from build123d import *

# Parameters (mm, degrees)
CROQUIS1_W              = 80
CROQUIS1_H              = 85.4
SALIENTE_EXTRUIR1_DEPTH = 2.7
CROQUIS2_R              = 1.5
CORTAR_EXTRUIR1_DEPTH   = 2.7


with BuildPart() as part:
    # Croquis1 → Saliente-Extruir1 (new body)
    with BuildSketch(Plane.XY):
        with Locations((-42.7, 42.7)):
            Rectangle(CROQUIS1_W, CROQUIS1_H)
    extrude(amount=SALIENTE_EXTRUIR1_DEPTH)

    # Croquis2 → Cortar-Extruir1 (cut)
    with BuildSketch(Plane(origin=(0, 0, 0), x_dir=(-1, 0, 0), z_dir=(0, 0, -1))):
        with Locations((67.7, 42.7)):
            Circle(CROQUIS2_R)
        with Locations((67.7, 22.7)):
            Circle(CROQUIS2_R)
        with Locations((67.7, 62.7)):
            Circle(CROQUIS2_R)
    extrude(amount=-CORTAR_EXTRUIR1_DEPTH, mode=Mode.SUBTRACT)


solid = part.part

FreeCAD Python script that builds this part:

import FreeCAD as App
import Part
import Sketcher
from FreeCAD import Vector
Q = App.Units.Quantity


def add_polygon(sketch, points):
    """Adds a closed chain of lines whose ends are joined by coincident constraints."""
    first, n = sketch.GeometryCount, len(points)
    for a, b in zip(points, points[1:] + points[:1]):
        sketch.addGeometry(Part.LineSegment(App.Vector(*a, 0), App.Vector(*b, 0)), False)
    for i in range(n):
        sketch.addConstraint(Sketcher.Constraint("Coincident", first + i, 2, first + (i + 1) % n, 1))

doc = App.newDocument("Part")
params = doc.addObject("Spreadsheet::Sheet", "Params")
for row, (alias, value) in enumerate([
    ("sketch1_width", "80 mm"),
    ("sketch1_height", "85.4 mm"),
    ("pad1_length", "2.7 mm"),
    ("sketch2_diameter", "3 mm"),
    ("pocket1_length", "2.7 mm"),
], start=1):
    params.set(f"A{row}", alias)
    params.set(f"B{row}", "=" + value)
    params.setAlias(f"B{row}", alias)

body = doc.addObject("PartDesign::Body", "Body")

# Sketch on XY plane
sketch1 = body.newObject("Sketcher::SketchObject", "Sketch")
sketch1.AttachmentSupport = (doc.getObject("XY_Plane"), [""])
sketch1.MapMode = "FlatFace"
add_polygon(sketch1, [(-83, 85), (-83, 0), (-3, 0), (-3, 85)])  # lines 0-3
sketch1.addConstraint([
    Sketcher.Constraint("Vertical", 0),
    Sketcher.Constraint("Horizontal", 1),
    Sketcher.Constraint("Vertical", 2),
    Sketcher.Constraint("Horizontal", 3),
    Sketcher.Constraint("PointOnObject", 0, 2, -1),
    Sketcher.Constraint("DistanceX", 1, 1, 1, 2, Q("80 mm")),
    Sketcher.Constraint("DistanceY", 0, 2, 0, 1, Q("85.4 mm")),
    Sketcher.Constraint("DistanceX", 0, 2, -1, 1, Q("82.7 mm")),
])
sketch1.setExpression("Constraints[9]", "Params.sketch1_width")
sketch1.setExpression("Constraints[10]", "Params.sketch1_height")
pad1 = body.newObject("PartDesign::Pad", "Pad")
pad1.Profile = sketch1
pad1.setExpression("Length", "Params.pad1_length")

# Sketch on XY plane
sketch2 = body.newObject("Sketcher::SketchObject", "Sketch001")
sketch2.AttachmentSupport = (doc.getObject("XY_Plane"), [""])
sketch2.MapMode = "FlatFace"
sketch2.addGeometry([
    Part.Circle(Vector(-67.7, 42.7, 0), Vector(0, 0, 1), 1.5),
    Part.Circle(Vector(-67.7, 22.7, 0), Vector(0, 0, 1), 1.5),
    Part.Circle(Vector(-67.7, 62.7, 0), Vector(0, 0, 1), 1.5),
], False)
sketch2.addConstraint([
    Sketcher.Constraint("Equal", 0, 1),
    Sketcher.Constraint("Equal", 1, 2),
    Sketcher.Constraint("Vertical", 0, 3, 1, 3),
    Sketcher.Constraint("Vertical", 1, 3, 2, 3),
    Sketcher.Constraint("Diameter", 0, Q("3 mm")),
    Sketcher.Constraint("DistanceY", 1, 3, 0, 3, Q("20 mm")),
    Sketcher.Constraint("DistanceY", 0, 3, 2, 3, Q("20 mm")),
    Sketcher.Constraint("DistanceX", 0, 3, -1, 1, Q("67.7 mm")),
    Sketcher.Constraint("DistanceY", -1, 1, 0, 3, Q("42.7 mm")),
])
sketch2.setExpression("Constraints[4]", "Params.sketch2_diameter")
pocket1 = body.newObject("PartDesign::Pocket", "Pocket")
pocket1.Profile = sketch2
pocket1.setExpression("Length", "Params.pocket1_length")
pocket1.Reversed = True

doc.recompute()
